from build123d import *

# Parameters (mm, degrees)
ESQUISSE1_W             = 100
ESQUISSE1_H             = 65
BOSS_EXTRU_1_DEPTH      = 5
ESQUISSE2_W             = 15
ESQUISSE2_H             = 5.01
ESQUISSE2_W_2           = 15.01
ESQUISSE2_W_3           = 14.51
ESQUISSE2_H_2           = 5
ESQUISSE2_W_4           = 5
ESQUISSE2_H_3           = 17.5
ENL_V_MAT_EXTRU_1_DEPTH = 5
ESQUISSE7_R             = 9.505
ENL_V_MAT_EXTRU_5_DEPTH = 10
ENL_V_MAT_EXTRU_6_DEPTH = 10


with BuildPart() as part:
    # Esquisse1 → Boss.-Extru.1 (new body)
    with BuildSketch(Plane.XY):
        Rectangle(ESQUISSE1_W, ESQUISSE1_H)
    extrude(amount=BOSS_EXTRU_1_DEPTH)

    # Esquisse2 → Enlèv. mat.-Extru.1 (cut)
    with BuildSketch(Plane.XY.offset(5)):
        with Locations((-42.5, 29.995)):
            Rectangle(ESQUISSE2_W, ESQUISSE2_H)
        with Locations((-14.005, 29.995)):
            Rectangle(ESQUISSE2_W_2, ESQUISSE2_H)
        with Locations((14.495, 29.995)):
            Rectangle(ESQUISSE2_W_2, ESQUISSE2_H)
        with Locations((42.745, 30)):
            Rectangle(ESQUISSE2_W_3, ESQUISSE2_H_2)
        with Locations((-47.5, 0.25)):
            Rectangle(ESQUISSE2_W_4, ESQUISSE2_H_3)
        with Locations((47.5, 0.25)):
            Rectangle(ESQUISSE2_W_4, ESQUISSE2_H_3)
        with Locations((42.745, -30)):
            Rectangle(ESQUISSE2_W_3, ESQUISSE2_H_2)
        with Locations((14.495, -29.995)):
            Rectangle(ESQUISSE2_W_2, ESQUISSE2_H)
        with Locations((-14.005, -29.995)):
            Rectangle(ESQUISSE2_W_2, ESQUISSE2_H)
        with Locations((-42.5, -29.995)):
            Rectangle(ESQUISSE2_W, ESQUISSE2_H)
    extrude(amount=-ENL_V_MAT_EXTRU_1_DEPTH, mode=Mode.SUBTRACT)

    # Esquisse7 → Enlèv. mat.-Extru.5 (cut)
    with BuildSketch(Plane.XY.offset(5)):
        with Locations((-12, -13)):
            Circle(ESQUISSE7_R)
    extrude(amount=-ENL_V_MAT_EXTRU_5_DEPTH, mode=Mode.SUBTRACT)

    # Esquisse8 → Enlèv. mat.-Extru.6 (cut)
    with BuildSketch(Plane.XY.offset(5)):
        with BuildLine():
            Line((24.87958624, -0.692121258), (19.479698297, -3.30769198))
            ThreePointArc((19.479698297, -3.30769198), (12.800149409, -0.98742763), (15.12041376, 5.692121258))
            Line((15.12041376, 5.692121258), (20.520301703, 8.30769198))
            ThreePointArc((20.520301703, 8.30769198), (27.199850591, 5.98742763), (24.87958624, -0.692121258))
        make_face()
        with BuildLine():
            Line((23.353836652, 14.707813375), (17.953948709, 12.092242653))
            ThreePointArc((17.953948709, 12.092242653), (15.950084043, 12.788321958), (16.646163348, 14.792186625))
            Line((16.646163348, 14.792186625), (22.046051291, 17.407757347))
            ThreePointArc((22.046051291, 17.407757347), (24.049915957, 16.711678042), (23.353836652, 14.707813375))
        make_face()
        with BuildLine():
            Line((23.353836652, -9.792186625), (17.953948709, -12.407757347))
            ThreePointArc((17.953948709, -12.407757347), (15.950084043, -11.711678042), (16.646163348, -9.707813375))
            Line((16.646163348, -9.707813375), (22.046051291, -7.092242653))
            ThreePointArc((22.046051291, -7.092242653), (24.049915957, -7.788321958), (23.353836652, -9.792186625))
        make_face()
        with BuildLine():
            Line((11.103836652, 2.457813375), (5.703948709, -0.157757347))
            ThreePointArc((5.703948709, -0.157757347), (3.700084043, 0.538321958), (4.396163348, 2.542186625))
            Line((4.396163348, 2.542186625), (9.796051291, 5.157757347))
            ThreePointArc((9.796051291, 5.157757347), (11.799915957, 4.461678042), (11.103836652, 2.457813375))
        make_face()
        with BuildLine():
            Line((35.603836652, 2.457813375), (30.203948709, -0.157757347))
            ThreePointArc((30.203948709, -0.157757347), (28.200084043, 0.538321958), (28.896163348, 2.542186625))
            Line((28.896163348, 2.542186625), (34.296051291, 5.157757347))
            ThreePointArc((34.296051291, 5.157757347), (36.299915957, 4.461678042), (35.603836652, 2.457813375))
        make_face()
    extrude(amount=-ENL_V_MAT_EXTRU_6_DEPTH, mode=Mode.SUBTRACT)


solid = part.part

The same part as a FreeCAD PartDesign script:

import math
import FreeCAD as App
import Part
import Sketcher

V = App.Vector


def add_polygon(sketch, points):
    """Adds a closed chain of lines whose ends are joined by coincident constraints."""
    first, n = sketch.GeometryCount, len(points)
    for a, b in zip(points, points[1:] + points[:1]):
        sketch.addGeometry(Part.LineSegment(App.Vector(*a, 0), App.Vector(*b, 0)), False)
    for i in range(n):
        sketch.addConstraint(Sketcher.Constraint("Coincident", first + i, 2, first + (i + 1) % n, 1))

doc = App.newDocument("Part")
body = doc.addObject("PartDesign::Body", "Body")

sketch1 = body.newObject("Sketcher::SketchObject", "Sketch")
sketch1.AttachmentSupport = (doc.getObject("XY_Plane"), [""])
sketch1.MapMode = "FlatFace"
add_polygon(sketch1, [(-50, 32), (-50, -32), (50, -32), (50, 32)])
sketch1.addConstraint([
    Sketcher.Constraint("Vertical", 0),
    Sketcher.Constraint("Horizontal", 1),
    Sketcher.Constraint("Vertical", 2),
    Sketcher.Constraint("Horizontal", 3),
    Sketcher.Constraint("Symmetric", 0, 2, 2, 2, -1, 1),
    Sketcher.Constraint("DistanceX", 1, 1, 1, 2, 100.0),
    Sketcher.Constraint("DistanceY", 0, 2, 0, 1, 65.0),
])
pad1 = body.newObject("PartDesign::Pad", "Pad")
pad1.Profile = sketch1
pad1.Length = 5

sketch2 = body.newObject("Sketcher::SketchObject", "Sketch001")
sketch2.AttachmentSupport = (doc.getObject("XY_Plane"), [""])
sketch2.MapMode = "FlatFace"
sketch2.AttachmentOffset = App.Placement(V(0, 0, 5), App.Rotation())
add_polygon(sketch2, [(-50, 32), (-50, 27), (-35, 27), (-35, 32)])
add_polygon(sketch2, [(-22, 32), (-22, 27), (-6, 27), (-6, 32)])
add_polygon(sketch2, [(7, 32), (7, 27), (22, 27), (22, 32)])
add_polygon(sketch2, [(35, 32), (35, 28), (50, 28), (50, 32)])
add_polygon(sketch2, [(-50, 9), (-50, -8), (-45, -8), (-45, 9)])
add_polygon(sketch2, [(45, 9), (45, -8), (50, -8), (50, 9)])
add_polygon(sketch2, [(35, -28), (35, -32), (50, -32), (50, -28)])
add_polygon(sketch2, [(7, -27), (7, -32), (22, -32), (22, -27)])
add_polygon(sketch2, [(-22, -27), (-22, -32), (-6, -32), (-6, -27)])
add_polygon(sketch2, [(-50, -27), (-50, -32), (-35, -32), (-35, -27)])
sketch2.addConstraint([
    Sketcher.Constraint("Vertical", 0),
    Sketcher.Constraint("Horizontal", 1),
    Sketcher.Constraint("Vertical", 2),
    Sketcher.Constraint("Horizontal", 3),
    Sketcher.Constraint("Vertical", 4),
    Sketcher.Constraint("Horizontal", 5),
    Sketcher.Constraint("Vertical", 6),
    Sketcher.Constraint("Horizontal", 7),
    Sketcher.Constraint("Vertical", 8),
    Sketcher.Constraint("Horizontal", 9),
    Sketcher.Constraint("Vertical", 10),
    Sketcher.Constraint("Horizontal", 11),
    Sketcher.Constraint("Vertical", 12),
    Sketcher.Constraint("Horizontal", 13),
    Sketcher.Constraint("Vertical", 14),
    Sketcher.Constraint("Horizontal", 15),
    Sketcher.Constraint("Vertical", 16),
    Sketcher.Constraint("Horizontal", 17),
    Sketcher.Constraint("Vertical", 18),
    Sketcher.Constraint("Horizontal", 19),
    Sketcher.Constraint("Vertical", 20),
    Sketcher.Constraint("Horizontal", 21),
    Sketcher.Constraint("Vertical", 22),
    Sketcher.Constraint("Horizontal", 23),
    Sketcher.Constraint("Vertical", 24),
    Sketcher.Constraint("Horizontal", 25),
    Sketcher.Constraint("Vertical", 26),
    Sketcher.Constraint("Horizontal", 27),
    Sketcher.Constraint("Vertical", 28),
    Sketcher.Constraint("Horizontal", 29),
    Sketcher.Constraint("Vertical", 30),
    Sketcher.Constraint("Horizontal", 31),
    Sketcher.Constraint("Vertical", 32),
    Sketcher.Constraint("Horizontal", 33),
    Sketcher.Constraint("Vertical", 34),
    Sketcher.Constraint("Horizontal", 35),
    Sketcher.Constraint("Vertical", 36),
    Sketcher.Constraint("Horizontal", 37),
    Sketcher.Constraint("Vertical", 38),
    Sketcher.Constraint("Horizontal", 39),
    Sketcher.Constraint("Symmetric", 3, 2, 25, 2, -1, 1),
    Sketcher.Constraint("Symmetric", 14, 2, 36, 2, -1, 1),
    Sketcher.Constraint("Symmetric", 3, 2, 14, 2, -2),
    Sketcher.Constraint("Symmetric", 17, 2, 20, 2, -2),
    Sketcher.Constraint("Symmetric", 19, 2, 22, 2, -2),
    Sketcher.Constraint("Symmetric", 12, 2, 27, 2, -1),
    Sketcher.Constraint("Symmetric", 11, 2, 28, 2, -1),
    Sketcher.Constraint("Symmetric", 9, 2, 30, 2, -1),
    Sketcher.Constraint("Symmetric", 7, 2, 32, 2, -1),
    Sketcher.Constraint("Symmetric", 5, 2, 34, 2, -1),
    Sketcher.Constraint("Symmetric", 1, 2, 38, 2, -1),
    Sketcher.Constraint("Horizontal", 1, 2, 4, 2),
    Sketcher.Constraint("Horizontal", 3, 2, 6, 2),
    Sketcher.Constraint("Horizontal", 5, 2, 8, 2),
    Sketcher.Constraint("Horizontal", 7, 2, 10, 2),
    Sketcher.Constraint("Vertical", 3, 2, 16, 2),
    Sketcher.Constraint("Equal", 7, 9),
    Sketcher.Constraint("Equal", 23, 12),
    Sketcher.Constraint("DistanceX", 1, 1, 1, 2, 15.0),
    Sketcher.Constraint("DistanceX", 17, 1, 17, 2, 5.0),
    Sketcher.Constraint("DistanceY", 16, 2, 16, 1, 17.5),
    Sketcher.Constraint("DistanceX", 0, 2, -1, 1, 50.0),
    Sketcher.Constraint("DistanceX", -1, 1, 9, 2, 22.0),
    Sketcher.Constraint("DistanceY", -1, 1, 18, 2, 9.0),
    Sketcher.Constraint("DistanceY", 16, 2, 3, 2, 41.0),
    Sketcher.Constraint("DistanceX", 5, 1, 5, 2, 15.01),
    Sketcher.Constraint("DistanceX", 13, 1, 13, 2, 14.51),
    Sketcher.Constraint("DistanceY", 0, 2, 0, 1, 5.01),
    Sketcher.Constraint("DistanceX", 5, 2, -1, 1, 6.5),
])
pocket1 = body.newObject("PartDesign::Pocket", "Pocket")
pocket1.Profile = sketch2
pocket1.Length = 5

sketch3 = body.newObject("Sketcher::SketchObject", "Sketch002")
sketch3.AttachmentSupport = (doc.getObject("XY_Plane"), [""])
sketch3.MapMode = "FlatFace"
sketch3.AttachmentOffset = App.Placement(V(0, 0, 5), App.Rotation())
sketch3.addGeometry(Part.Circle(V(-12, -13, 0), V(0, 0, 1), 10), False)
sketch3.addConstraint([
    Sketcher.Constraint("Diameter", 0, 19.01),
    Sketcher.Constraint("DistanceX", 0, 3, -1, 1, 12.0),
    Sketcher.Constraint("DistanceY", 0, 3, -1, 1, 13.0),
])
pocket2 = body.newObject("PartDesign::Pocket", "Pocket001")
pocket2.Profile = sketch3
pocket2.Length = 10

sketch4 = body.newObject("Sketcher::SketchObject", "Sketch003")
sketch4.AttachmentSupport = (doc.getObject("XY_Plane"), [""])
sketch4.MapMode = "FlatFace"
sketch4.AttachmentOffset = App.Placement(V(0, 0, 5), App.Rotation())
sketch4.addGeometry([
    Part.LineSegment(V(19.5, -3.3, 0), V(24.9, -0.7, 0)),
    Part.ArcOfCircle(Part.Circle(V(22.7, 3.8, 0), V(0, 0, 1), 5), math.radians(-64), math.radians(116)),
    Part.LineSegment(V(20.5, 8.3, 0), V(15.1, 5.7, 0)),
    Part.ArcOfCircle(Part.Circle(V(17.3, 1.2, 0), V(0, 0, 1), 5), math.radians(116), math.radians(296)),
    Part.LineSegment(V(18, 12.1, 0), V(23.4, 14.7, 0)),
    Part.ArcOfCircle(Part.Circle(V(22.7, 16.1, 0), V(0, 0, 1), 1.5), math.radians(-64), math.radians(116)),
    Part.LineSegment(V(22, 17.4, 0), V(16.6, 14.8, 0)),
    Part.ArcOfCircle(Part.Circle(V(17.3, 13.4, 0), V(0, 0, 1), 1.5), math.radians(116), math.radians(296)),
    Part.LineSegment(V(18, -12.4, 0), V(23.4, -9.8, 0)),
    Part.ArcOfCircle(Part.Circle(V(22.7, -8.4, 0), V(0, 0, 1), 1.5), math.radians(-64), math.radians(116)),
    Part.LineSegment(V(22, -7.1, 0), V(16.6, -9.7, 0)),
    Part.ArcOfCircle(Part.Circle(V(17.3, -11.1, 0), V(0, 0, 1), 1.5), math.radians(116), math.radians(296)),
    Part.LineSegment(V(5.7, -0.2, 0), V(11.1, 2.5, 0)),
    Part.ArcOfCircle(Part.Circle(V(10.4, 3.8, 0), V(0, 0, 1), 1.5), math.radians(-64), math.radians(116)),
    Part.LineSegment(V(9.8, 5.2, 0), V(4.4, 2.5, 0)),
    Part.ArcOfCircle(Part.Circle(V(5.1, 1.2, 0), V(0, 0, 1), 1.5), math.radians(116), math.radians(296)),
    Part.LineSegment(V(30.2, -0.2, 0), V(35.6, 2.5, 0)),
    Part.ArcOfCircle(Part.Circle(V(34.9, 3.8, 0), V(0, 0, 1), 1.5), math.radians(-64), math.radians(116)),
    Part.LineSegment(V(34.3, 5.2, 0), V(28.9, 2.5, 0)),
    Part.ArcOfCircle(Part.Circle(V(29.6, 1.2, 0), V(0, 0, 1), 1.5), math.radians(116), math.radians(296)),
], False)
sketch4.addConstraint([
    Sketcher.Constraint("Tangent", 0, 2, 1, 1),
    Sketcher.Constraint("Tangent", 1, 2, 2, 1),
    Sketcher.Constraint("Tangent", 2, 2, 3, 1),
    Sketcher.Constraint("Tangent", 3, 2, 0, 1),
    Sketcher.Constraint("Tangent", 4, 2, 5, 1),
    Sketcher.Constraint("Tangent", 5, 2, 6, 1),
    Sketcher.Constraint("Tangent", 6, 2, 7, 1),
    Sketcher.Constraint("Tangent", 7, 2, 4, 1),
    Sketcher.Constraint("Tangent", 8, 2, 9, 1),
    Sketcher.Constraint("Tangent", 9, 2, 10, 1),
    Sketcher.Constraint("Tangent", 10, 2, 11, 1),
    Sketcher.Constraint("Tangent", 11, 2, 8, 1),
    Sketcher.Constraint("Tangent", 12, 2, 13, 1),
    Sketcher.Constraint("Tangent", 13, 2, 14, 1),
    Sketcher.Constraint("Tangent", 14, 2, 15, 1),
    Sketcher.Constraint("Tangent", 15, 2, 12, 1),
    Sketcher.Constraint("Tangent", 16, 2, 17, 1),
    Sketcher.Constraint("Tangent", 17, 2, 18, 1),
    Sketcher.Constraint("Tangent", 18, 2, 19, 1),
    Sketcher.Constraint("Tangent", 19, 2, 16, 1),
    Sketcher.Constraint("Equal", 1, 3),
    Sketcher.Constraint("Equal", 5, 7),
    Sketcher.Constraint("Equal", 7, 9),
    Sketcher.Constraint("Equal", 9, 11),
    Sketcher.Constraint("Equal", 11, 13),
    Sketcher.Constraint("Equal", 13, 15),
    Sketcher.Constraint("Equal", 15, 17),
    Sketcher.Constraint("Equal", 17, 19),
    Sketcher.Constraint("Parallel", 2, 4),
    Sketcher.Constraint("Parallel", 6, 8),
    Sketcher.Constraint("Parallel", 10, 12),
    Sketcher.Constraint("Parallel", 14, 16),
    Sketcher.Constraint("Horizontal", 1, 3, 13, 3),
    Sketcher.Constraint("Horizontal", 3, 3, 15, 3),
    Sketcher.Constraint("Horizontal", 13, 3, 17, 3),
    Sketcher.Constraint("Horizontal", 15, 3, 19, 3),
    Sketcher.Constraint("Vertical", 1, 3, 5, 3),
    Sketcher.Constraint("Vertical", 3, 3, 7, 3),
    Sketcher.Constraint("Vertical", 5, 3, 9, 3),
    Sketcher.Constraint("Vertical", 7, 3, 11, 3),
    Sketcher.Constraint("Radius", 1, 5.0),
    Sketcher.Constraint("Radius", 5, 1.5),
    Sketcher.Constraint("Distance", 0, 6.0),
    Sketcher.Constraint("DistanceY", 9, 3, 5, 3, 24.5),
    Sketcher.Constraint("DistanceY", 1, 3, 5, 3, 12.25),
    Sketcher.Constraint("DistanceX", 13, 3, 1, 3, 12.25),
    Sketcher.Constraint("DistanceX", 1, 3, 17, 3, 12.25),
    Sketcher.Constraint("DistanceX", -1, 1, 1, 2, 20.520302),
    Sketcher.Constraint("DistanceX", -1, 1, 3, 2, 19.479698),
    Sketcher.Constraint("DistanceY", 0, 2, -1, 1, 0.692121),
])
pocket3 = body.newObject("PartDesign::Pocket", "Pocket002")
pocket3.Profile = sketch4
pocket3.Length = 10

doc.recompute()
